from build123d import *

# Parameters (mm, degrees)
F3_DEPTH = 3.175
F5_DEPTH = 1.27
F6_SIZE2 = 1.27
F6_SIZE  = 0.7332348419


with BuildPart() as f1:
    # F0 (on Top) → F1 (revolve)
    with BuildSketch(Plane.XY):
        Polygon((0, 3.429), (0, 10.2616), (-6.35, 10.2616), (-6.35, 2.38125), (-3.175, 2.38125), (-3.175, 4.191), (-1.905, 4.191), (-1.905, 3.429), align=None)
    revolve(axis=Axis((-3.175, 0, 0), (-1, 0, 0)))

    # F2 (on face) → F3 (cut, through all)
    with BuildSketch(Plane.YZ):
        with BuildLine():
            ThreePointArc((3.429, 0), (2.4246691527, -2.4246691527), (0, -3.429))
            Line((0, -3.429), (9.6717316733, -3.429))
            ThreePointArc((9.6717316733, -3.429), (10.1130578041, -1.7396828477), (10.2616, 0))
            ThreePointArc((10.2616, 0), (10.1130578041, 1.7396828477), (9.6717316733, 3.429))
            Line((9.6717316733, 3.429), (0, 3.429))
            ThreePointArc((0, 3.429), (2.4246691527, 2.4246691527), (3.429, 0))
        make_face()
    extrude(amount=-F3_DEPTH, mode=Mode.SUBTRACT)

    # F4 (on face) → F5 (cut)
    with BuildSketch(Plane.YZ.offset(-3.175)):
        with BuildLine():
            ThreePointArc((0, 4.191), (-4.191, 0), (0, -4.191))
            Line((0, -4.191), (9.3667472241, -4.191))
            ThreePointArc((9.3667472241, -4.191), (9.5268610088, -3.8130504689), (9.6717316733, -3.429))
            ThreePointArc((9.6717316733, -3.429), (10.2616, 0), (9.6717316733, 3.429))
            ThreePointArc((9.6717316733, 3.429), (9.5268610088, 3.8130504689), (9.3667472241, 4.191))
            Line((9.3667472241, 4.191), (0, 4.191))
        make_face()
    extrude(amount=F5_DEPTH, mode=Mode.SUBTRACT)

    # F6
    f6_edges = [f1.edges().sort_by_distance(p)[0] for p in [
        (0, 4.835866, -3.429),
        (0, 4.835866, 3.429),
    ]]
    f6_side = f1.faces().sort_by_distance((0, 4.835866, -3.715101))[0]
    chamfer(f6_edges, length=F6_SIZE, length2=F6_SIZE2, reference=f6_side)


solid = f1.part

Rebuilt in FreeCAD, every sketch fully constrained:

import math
import FreeCAD as App
import Part
import Sketcher
Q = App.Units.Quantity


def edges_at(feature, points):
    """Names of the edges that pass closest to the given points."""
    edges = feature.Shape.Edges
    near = lambda p: min(range(len(edges)), key=lambda i: edges[i].distToShape(Part.Vertex(*p))[0])
    return sorted({f"Edge{near(p) + 1}" for p in points})

doc = App.newDocument("Part")
body = doc.addObject("PartDesign::Body", "Body")

sketch1 = body.newObject("Sketcher::SketchObject", "Sketch")
sketch1.AttachmentSupport = (doc.getObject("XY_Plane"), [""])
sketch1.MapMode = "FlatFace"
sketch1.addGeometry(Part.LineSegment(App.Vector(0, 3.429, 0), App.Vector(0, 10.2616, 0)), False)
sketch1.addGeometry(Part.LineSegment(App.Vector(0, 10.2616, 0), App.Vector(-6.35, 10.2616, 0)), False)
sketch1.addGeometry(Part.LineSegment(App.Vector(-6.35, 10.2616, 0), App.Vector(-6.35, 2.38125, 0)), False)
sketch1.addGeometry(Part.LineSegment(App.Vector(-6.35, 2.38125, 0), App.Vector(-3.175, 2.38125, 0)), False)
sketch1.addGeometry(Part.LineSegment(App.Vector(-3.175, 2.38125, 0), App.Vector(-3.175, 4.191, 0)), False)
sketch1.addGeometry(Part.LineSegment(App.Vector(-3.175, 4.191, 0), App.Vector(-1.905, 4.191, 0)), False)
sketch1.addGeometry(Part.LineSegment(App.Vector(-1.905, 4.191, 0), App.Vector(-1.905, 3.429, 0)), False)
sketch1.addGeometry(Part.LineSegment(App.Vector(-1.905, 3.429, 0), App.Vector(0, 3.429, 0)), False)
sketch1.addConstraint(Sketcher.Constraint("Coincident", 0, 2, 1, 1))
sketch1.addConstraint(Sketcher.Constraint("Coincident", 1, 2, 2, 1))
sketch1.addConstraint(Sketcher.Constraint("Coincident", 2, 2, 3, 1))
sketch1.addConstraint(Sketcher.Constraint("Coincident", 3, 2, 4, 1))
sketch1.addConstraint(Sketcher.Constraint("Coincident", 4, 2, 5, 1))
sketch1.addConstraint(Sketcher.Constraint("Coincident", 5, 2, 6, 1))
sketch1.addConstraint(Sketcher.Constraint("Coincident", 6, 2, 7, 1))
sketch1.addConstraint(Sketcher.Constraint("Coincident", 7, 2, 0, 1))
sketch1.addConstraint(Sketcher.Constraint("Vertical", 0))
sketch1.addConstraint(Sketcher.Constraint("Horizontal", 1))
sketch1.addConstraint(Sketcher.Constraint("Vertical", 2))
sketch1.addConstraint(Sketcher.Constraint("Horizontal", 3))
sketch1.addConstraint(Sketcher.Constraint("Vertical", 4))
sketch1.addConstraint(Sketcher.Constraint("Horizontal", 5))
sketch1.addConstraint(Sketcher.Constraint("Vertical", 6))
sketch1.addConstraint(Sketcher.Constraint("Horizontal", 7))
sketch1.addConstraint(Sketcher.Constraint("PointOnObject", 0, 2, -2))
sketch1.addConstraint(Sketcher.Constraint("DistanceX", 1, 2, 1, 1, Q("0.25 in")))
sketch1.addConstraint(Sketcher.Constraint("DistanceX", 5, 1, 5, 2, Q("0.05 in")))
sketch1.addConstraint(Sketcher.Constraint("DistanceY", 6, 2, 6, 1, Q("0.03 in")))
sketch1.addConstraint(Sketcher.Constraint("DistanceX", 3, 1, 3, 2, Q("0.125 in")))
sketch1.addConstraint(Sketcher.Constraint("DistanceY", 0, 1, 0, 2, Q("0.269 in")))
sketch1.addConstraint(Sketcher.Constraint("DistanceY", -1, 1, 0, 2, Q("0.404 in")))
sketch1.addConstraint(Sketcher.Constraint("DistanceY", -1, 1, 2, 2, Q("0.09375 in")))
revolution = body.newObject("PartDesign::Revolution", "Revolution")
revolution.Profile = sketch1
revolution.ReferenceAxis = (sketch1, ["H_Axis"])
revolution.Angle = 360

sketch2 = body.newObject("Sketcher::SketchObject", "Sketch001")
sketch2.AttachmentSupport = (doc.getObject("YZ_Plane"), [""])
sketch2.MapMode = "FlatFace"
sketch2.addGeometry(Part.ArcOfCircle(Part.Circle(App.Vector(0, 0, 0), App.Vector(0, 0, 1), 3.429), math.radians(-90), math.radians(0)), False)
sketch2.addGeometry(Part.LineSegment(App.Vector(0, -3.429, 0), App.Vector(9.671732, -3.429, 0)), False)
sketch2.addGeometry(Part.ArcOfCircle(Part.Circle(App.Vector(0, 0, 0), App.Vector(0, 0, 1), 10.2616), math.radians(-19.52137), math.radians(0)), False)
sketch2.addGeometry(Part.ArcOfCircle(Part.Circle(App.Vector(0, 0, 0), App.Vector(0, 0, 1), 10.2616), math.radians(0), math.radians(19.52137)), False)
sketch2.addGeometry(Part.LineSegment(App.Vector(9.671732, 3.429, 0), App.Vector(0, 3.429, 0)), False)
sketch2.addGeometry(Part.ArcOfCircle(Part.Circle(App.Vector(0, 0, 0), App.Vector(0, 0, 1), 3.429), math.radians(0), math.radians(90)), False)
sketch2.addConstraint(Sketcher.Constraint("Tangent", 0, 1, 1, 1))
sketch2.addConstraint(Sketcher.Constraint("Coincident", 1, 2, 2, 1))
sketch2.addConstraint(Sketcher.Constraint("Tangent", 2, 2, 3, 1))
sketch2.addConstraint(Sketcher.Constraint("Coincident", 3, 2, 4, 1))
sketch2.addConstraint(Sketcher.Constraint("Tangent", 4, 2, 5, 2))
sketch2.addConstraint(Sketcher.Constraint("Tangent", 5, 1, 0, 2))
sketch2.addConstraint(Sketcher.Constraint("Horizontal", 1))
sketch2.addConstraint(Sketcher.Constraint("Horizontal", 4))
sketch2.addConstraint(Sketcher.Constraint("Coincident", 0, 3, -1, 1))
sketch2.addConstraint(Sketcher.Constraint("Coincident", 2, 3, -1, 1))
sketch2.addConstraint(Sketcher.Constraint("Equal", 2, 3))
sketch2.addConstraint(Sketcher.Constraint("Equal", 0, 5))
sketch2.addConstraint(Sketcher.Constraint("PointOnObject", 2, 2, -1))
sketch2.addConstraint(Sketcher.Constraint("PointOnObject", 5, 1, -1))
sketch2.addConstraint(Sketcher.Constraint("Radius", 0, Q("0.135 in")))
sketch2.addConstraint(Sketcher.Constraint("Radius", 2, Q("0.404 in")))
pocket1 = body.newObject("PartDesign::Pocket", "Pocket")
pocket1.Profile = sketch2
pocket1.Length = Q("0.125 in")

sketch3 = body.newObject("Sketcher::SketchObject", "Sketch002")
sketch3.AttachmentSupport = (doc.getObject("YZ_Plane"), [""])
sketch3.MapMode = "FlatFace"
sketch3.AttachmentOffset = App.Placement(App.Vector(0, 0, -0.125 * 25.4), App.Rotation())
sketch3.addGeometry(Part.ArcOfCircle(Part.Circle(App.Vector(0, 0, 0), App.Vector(0, 0, 1), 4.191), math.radians(90), math.radians(270)), False)
sketch3.addGeometry(Part.LineSegment(App.Vector(0, -4.191, 0), App.Vector(9.366747, -4.191, 0)), False)
sketch3.addGeometry(Part.ArcOfCircle(Part.Circle(App.Vector(0, 0, 0), App.Vector(0, 0, 1), 10.2616), math.radians(-24.105359), math.radians(-19.52137)), False)
sketch3.addGeometry(Part.ArcOfCircle(Part.Circle(App.Vector(0, 0, 0), App.Vector(0, 0, 1), 10.2616), math.radians(-19.52137), math.radians(19.52137)), False)
sketch3.addGeometry(Part.ArcOfCircle(Part.Circle(App.Vector(0, 0, 0), App.Vector(0, 0, 1), 10.2616), math.radians(19.52137), math.radians(24.105359)), False)
sketch3.addGeometry(Part.LineSegment(App.Vector(9.366747, 4.191, 0), App.Vector(0, 4.191, 0)), False)
sketch3.addConstraint(Sketcher.Constraint("Tangent", 0, 2, 1, 1))
sketch3.addConstraint(Sketcher.Constraint("Coincident", 1, 2, 2, 1))
sketch3.addConstraint(Sketcher.Constraint("Tangent", 2, 2, 3, 1))
sketch3.addConstraint(Sketcher.Constraint("Tangent", 3, 2, 4, 1))
sketch3.addConstraint(Sketcher.Constraint("Coincident", 4, 2, 5, 1))
sketch3.addConstraint(Sketcher.Constraint("Tangent", 5, 2, 0, 1))
sketch3.addConstraint(Sketcher.Constraint("Horizontal", 1))
sketch3.addConstraint(Sketcher.Constraint("Horizontal", 5))
sketch3.addConstraint(Sketcher.Constraint("Coincident", 0, 3, -1, 1))
sketch3.addConstraint(Sketcher.Constraint("Coincident", 2, 3, -1, 1))
sketch3.addConstraint(Sketcher.Constraint("Coincident", 4, 3, -1, 1))
sketch3.addConstraint(Sketcher.Constraint("Vertical", 2, 2, 3, 2))
sketch3.addConstraint(Sketcher.Constraint("Radius", 0, Q("0.165 in")))
sketch3.addConstraint(Sketcher.Constraint("Radius", 2, Q("0.404 in")))
sketch3.addConstraint(Sketcher.Constraint("DistanceY", 1, 2, 3, 2, Q("0.3 in")))
pocket2 = body.newObject("PartDesign::Pocket", "Pocket001")
pocket2.Profile = sketch3
pocket2.Length = Q("0.05 in")
pocket2.Reversed = True
doc.recompute()

chamfer = body.newObject("PartDesign::Chamfer", "Chamfer")
chamfer.Base = (pocket2, edges_at(pocket2, [(0, 4.836, -3.429), (0, 4.836, 3.429)]))
chamfer.ChamferType = "Two distances"
chamfer.Size = 0.733235
chamfer.Size2 = Q("0.05 in")

doc.recompute()
